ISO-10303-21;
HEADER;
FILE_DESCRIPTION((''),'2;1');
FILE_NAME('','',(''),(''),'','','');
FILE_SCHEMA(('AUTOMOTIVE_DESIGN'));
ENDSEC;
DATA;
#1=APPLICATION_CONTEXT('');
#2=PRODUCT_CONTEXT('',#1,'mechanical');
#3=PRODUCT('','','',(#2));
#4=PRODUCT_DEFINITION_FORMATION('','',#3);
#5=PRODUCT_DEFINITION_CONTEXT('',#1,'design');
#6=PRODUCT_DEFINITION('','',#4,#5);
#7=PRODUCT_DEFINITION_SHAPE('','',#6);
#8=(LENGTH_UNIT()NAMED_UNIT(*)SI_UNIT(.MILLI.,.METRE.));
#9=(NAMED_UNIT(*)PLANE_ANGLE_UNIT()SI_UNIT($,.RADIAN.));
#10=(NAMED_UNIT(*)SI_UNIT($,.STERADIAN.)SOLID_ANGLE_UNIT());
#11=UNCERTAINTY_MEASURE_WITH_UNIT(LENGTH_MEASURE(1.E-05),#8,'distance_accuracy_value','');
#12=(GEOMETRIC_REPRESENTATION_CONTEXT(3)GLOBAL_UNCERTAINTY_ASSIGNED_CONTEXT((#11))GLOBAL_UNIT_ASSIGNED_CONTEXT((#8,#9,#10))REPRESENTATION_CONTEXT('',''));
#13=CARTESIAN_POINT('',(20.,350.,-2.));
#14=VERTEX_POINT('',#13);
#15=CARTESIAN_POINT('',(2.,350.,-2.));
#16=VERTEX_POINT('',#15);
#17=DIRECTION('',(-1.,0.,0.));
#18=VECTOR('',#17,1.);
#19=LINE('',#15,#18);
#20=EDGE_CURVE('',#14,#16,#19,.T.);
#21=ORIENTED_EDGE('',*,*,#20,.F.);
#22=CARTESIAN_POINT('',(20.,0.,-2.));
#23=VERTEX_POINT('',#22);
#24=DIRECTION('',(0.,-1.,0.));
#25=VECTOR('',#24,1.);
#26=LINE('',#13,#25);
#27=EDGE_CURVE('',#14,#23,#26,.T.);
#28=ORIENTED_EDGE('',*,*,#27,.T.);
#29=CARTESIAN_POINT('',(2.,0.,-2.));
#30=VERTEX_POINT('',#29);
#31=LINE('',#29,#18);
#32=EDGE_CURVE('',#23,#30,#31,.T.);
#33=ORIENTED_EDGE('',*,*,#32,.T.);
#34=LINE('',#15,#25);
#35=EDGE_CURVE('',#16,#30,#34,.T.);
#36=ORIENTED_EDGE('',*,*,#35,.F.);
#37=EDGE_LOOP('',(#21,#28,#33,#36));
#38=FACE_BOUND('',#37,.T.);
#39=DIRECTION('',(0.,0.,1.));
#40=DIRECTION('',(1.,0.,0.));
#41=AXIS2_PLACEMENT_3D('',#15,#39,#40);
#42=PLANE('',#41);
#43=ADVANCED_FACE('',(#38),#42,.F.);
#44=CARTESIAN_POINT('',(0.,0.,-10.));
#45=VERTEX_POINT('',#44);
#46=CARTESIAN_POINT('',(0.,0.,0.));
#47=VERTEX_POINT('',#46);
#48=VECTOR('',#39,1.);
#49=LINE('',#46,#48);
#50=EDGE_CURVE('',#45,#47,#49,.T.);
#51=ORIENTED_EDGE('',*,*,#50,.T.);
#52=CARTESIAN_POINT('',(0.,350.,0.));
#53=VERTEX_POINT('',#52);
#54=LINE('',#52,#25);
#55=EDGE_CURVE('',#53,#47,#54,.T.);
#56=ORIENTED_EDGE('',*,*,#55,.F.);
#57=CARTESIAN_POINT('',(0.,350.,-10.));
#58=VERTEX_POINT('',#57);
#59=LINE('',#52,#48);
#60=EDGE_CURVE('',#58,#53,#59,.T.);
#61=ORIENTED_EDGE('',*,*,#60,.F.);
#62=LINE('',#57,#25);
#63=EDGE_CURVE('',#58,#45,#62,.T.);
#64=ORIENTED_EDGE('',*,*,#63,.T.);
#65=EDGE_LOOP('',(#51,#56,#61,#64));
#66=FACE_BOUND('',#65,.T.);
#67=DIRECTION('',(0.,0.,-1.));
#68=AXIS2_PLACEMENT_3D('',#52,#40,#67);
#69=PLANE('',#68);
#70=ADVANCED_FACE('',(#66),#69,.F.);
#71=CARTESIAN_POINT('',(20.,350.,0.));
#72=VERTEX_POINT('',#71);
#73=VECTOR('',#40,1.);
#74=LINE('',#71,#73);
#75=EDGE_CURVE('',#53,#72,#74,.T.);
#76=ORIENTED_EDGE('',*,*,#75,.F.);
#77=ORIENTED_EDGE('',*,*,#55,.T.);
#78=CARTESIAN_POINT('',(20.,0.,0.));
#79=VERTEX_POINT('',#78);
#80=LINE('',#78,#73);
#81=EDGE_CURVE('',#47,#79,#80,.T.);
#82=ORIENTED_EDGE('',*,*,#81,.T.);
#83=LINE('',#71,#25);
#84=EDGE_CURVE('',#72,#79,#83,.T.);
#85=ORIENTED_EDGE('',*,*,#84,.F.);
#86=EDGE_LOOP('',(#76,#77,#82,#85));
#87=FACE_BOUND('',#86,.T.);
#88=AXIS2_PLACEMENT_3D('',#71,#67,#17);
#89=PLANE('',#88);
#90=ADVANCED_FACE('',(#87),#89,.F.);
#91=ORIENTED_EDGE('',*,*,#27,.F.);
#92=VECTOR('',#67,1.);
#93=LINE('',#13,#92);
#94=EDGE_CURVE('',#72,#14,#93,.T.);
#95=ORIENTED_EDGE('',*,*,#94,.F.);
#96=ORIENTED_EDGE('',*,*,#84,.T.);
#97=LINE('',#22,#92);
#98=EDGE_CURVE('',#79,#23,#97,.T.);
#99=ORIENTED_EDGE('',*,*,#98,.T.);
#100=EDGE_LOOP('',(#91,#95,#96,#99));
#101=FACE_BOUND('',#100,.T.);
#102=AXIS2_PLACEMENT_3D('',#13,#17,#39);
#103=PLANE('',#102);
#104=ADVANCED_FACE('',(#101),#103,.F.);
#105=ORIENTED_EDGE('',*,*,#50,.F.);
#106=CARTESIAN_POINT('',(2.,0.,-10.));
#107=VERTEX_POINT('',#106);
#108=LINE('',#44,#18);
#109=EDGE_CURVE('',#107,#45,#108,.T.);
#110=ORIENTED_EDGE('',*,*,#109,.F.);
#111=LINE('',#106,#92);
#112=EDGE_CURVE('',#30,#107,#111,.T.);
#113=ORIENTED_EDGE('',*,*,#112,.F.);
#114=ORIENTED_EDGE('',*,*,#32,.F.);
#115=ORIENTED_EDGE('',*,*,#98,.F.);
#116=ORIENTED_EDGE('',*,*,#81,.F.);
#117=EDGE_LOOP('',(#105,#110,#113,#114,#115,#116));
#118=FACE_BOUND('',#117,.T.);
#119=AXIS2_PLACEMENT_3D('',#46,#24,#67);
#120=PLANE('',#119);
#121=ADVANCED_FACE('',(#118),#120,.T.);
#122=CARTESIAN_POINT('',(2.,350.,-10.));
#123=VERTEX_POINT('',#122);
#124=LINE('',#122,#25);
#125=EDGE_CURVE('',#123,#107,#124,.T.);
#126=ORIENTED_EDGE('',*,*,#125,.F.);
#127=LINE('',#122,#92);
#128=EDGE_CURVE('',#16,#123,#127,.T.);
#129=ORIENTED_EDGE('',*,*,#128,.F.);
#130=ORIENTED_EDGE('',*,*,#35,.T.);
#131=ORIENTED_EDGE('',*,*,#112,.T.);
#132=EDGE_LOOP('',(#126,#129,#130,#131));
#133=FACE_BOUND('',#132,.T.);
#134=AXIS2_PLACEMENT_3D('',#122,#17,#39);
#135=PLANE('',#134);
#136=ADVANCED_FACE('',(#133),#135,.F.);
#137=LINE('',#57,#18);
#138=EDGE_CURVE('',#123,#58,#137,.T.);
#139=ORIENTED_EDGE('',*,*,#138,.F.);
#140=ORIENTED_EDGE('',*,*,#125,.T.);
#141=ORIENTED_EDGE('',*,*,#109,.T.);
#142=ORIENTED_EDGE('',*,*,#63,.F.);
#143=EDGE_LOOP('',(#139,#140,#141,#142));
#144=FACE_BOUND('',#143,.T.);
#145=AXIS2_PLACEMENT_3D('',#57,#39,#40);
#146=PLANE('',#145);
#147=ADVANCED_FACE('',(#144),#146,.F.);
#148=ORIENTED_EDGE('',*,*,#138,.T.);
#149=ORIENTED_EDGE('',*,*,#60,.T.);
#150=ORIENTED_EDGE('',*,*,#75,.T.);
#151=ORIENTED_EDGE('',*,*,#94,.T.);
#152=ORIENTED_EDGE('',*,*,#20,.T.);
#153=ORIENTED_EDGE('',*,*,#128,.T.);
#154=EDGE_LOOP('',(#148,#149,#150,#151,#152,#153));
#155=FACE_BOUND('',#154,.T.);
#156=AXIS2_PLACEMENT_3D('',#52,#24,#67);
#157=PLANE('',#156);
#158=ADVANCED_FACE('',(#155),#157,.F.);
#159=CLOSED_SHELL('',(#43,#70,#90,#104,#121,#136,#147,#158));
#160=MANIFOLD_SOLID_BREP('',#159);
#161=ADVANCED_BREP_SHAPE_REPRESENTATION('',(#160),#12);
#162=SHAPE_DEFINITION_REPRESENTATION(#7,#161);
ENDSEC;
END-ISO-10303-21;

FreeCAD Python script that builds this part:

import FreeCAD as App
import Part
import Sketcher


def add_polygon(sketch, points):
    """Adds a closed chain of lines whose ends are joined by coincident constraints."""
    first, n = sketch.GeometryCount, len(points)
    for a, b in zip(points, points[1:] + points[:1]):
        sketch.addGeometry(Part.LineSegment(App.Vector(*a, 0), App.Vector(*b, 0)), False)
    for i in range(n):
        sketch.addConstraint(Sketcher.Constraint("Coincident", first + i, 2, first + (i + 1) % n, 1))

doc = App.newDocument("Part")
params = doc.addObject("Spreadsheet::Sheet", "Params")
for row, (alias, value) in enumerate([
    ("sketch1_width", "20 mm"),
    ("sketch1_width2", "18 mm"),
    ("sketch1_height", "10 mm"),
    ("pad1_length", "350 mm"),
], start=1):
    params.set(f"A{row}", alias)
    params.set(f"B{row}", "=" + value)
    params.setAlias(f"B{row}", alias)

body = doc.addObject("PartDesign::Body", "Body")

# Sketch on XZ plane
sketch1 = body.newObject("Sketcher::SketchObject", "Sketch")
sketch1.AttachmentSupport = (doc.getObject("XZ_Plane"), [""])
sketch1.MapMode = "FlatFace"
add_polygon(sketch1, [(0, -10), (0, 0), (20, 0), (20, -2), (2, -2), (2, -10)])  # lines 0-5
sketch1.addConstraint([
    Sketcher.Constraint("Vertical", 0),
    Sketcher.Constraint("Horizontal", 1),
    Sketcher.Constraint("Vertical", 2),
    Sketcher.Constraint("Horizontal", 3),
    Sketcher.Constraint("Vertical", 4),
    Sketcher.Constraint("Horizontal", 5),
    Sketcher.Constraint("Coincident", 0, 2, -1, 1),
    Sketcher.Constraint("Equal", 5, 2),
    Sketcher.Constraint("DistanceX", 1, 1, 1, 2, 20.0),
    Sketcher.Constraint("DistanceX", 3, 2, 3, 1, 18.0),
    Sketcher.Constraint("DistanceY", 0, 1, 0, 2, 10.0),
])
sketch1.setExpression("Constraints[14]", "Params.sketch1_width")
sketch1.setExpression("Constraints[15]", "Params.sketch1_width2")
sketch1.setExpression("Constraints[16]", "Params.sketch1_height")
pad1 = body.newObject("PartDesign::Pad", "Pad")
pad1.Profile = sketch1
pad1.setExpression("Length", "Params.pad1_length")
pad1.Reversed = True

doc.recompute()
